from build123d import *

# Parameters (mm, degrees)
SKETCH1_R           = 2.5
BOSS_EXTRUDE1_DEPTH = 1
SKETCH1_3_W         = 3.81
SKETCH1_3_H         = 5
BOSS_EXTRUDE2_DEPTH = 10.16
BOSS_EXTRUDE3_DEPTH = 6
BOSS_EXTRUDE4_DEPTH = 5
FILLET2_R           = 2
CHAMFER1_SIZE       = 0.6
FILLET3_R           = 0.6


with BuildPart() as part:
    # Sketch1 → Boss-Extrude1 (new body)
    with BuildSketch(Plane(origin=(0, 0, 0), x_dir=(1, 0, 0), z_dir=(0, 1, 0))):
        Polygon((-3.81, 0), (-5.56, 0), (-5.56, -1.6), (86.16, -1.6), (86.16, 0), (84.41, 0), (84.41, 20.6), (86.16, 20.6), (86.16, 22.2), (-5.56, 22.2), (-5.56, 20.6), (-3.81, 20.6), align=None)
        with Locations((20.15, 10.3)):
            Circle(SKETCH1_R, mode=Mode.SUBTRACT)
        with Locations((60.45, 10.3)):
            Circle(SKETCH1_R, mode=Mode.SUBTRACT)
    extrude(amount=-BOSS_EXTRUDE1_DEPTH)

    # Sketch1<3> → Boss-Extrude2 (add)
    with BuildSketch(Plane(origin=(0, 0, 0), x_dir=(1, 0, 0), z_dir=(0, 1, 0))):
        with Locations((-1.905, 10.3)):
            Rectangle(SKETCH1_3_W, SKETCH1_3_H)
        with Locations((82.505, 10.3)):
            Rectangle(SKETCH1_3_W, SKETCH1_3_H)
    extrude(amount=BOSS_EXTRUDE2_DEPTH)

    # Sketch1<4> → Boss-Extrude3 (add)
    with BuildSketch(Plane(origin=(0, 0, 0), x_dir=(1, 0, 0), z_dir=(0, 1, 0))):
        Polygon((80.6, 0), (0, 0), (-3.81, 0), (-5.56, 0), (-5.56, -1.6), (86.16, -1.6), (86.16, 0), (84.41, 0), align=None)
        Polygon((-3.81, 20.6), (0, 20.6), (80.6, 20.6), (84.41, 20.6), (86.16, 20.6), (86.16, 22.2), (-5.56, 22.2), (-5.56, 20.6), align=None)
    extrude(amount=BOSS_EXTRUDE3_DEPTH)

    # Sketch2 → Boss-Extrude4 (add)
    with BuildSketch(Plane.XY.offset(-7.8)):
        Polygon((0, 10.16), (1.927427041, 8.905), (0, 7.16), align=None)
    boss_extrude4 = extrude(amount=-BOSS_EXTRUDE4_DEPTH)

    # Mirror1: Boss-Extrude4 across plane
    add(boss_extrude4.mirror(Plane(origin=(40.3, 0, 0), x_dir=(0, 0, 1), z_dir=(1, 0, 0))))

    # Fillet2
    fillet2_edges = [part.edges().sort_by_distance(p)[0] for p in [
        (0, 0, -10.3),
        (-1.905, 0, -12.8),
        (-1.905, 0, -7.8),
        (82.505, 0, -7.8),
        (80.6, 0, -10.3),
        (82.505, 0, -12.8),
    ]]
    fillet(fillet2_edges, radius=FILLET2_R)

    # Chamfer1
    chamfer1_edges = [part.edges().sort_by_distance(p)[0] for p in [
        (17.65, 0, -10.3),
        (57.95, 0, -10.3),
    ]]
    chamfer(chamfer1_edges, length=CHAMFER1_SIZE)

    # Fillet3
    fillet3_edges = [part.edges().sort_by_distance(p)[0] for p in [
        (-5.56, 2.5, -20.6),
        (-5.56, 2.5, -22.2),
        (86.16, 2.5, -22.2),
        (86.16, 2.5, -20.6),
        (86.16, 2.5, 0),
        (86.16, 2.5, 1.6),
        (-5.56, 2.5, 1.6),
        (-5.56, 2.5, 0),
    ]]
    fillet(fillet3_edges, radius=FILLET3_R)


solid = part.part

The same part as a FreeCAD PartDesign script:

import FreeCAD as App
import Part
import Sketcher
Q = App.Units.Quantity


def edges_at(feature, points):
    """Names of the edges that pass closest to the given points."""
    edges = feature.Shape.Edges
    near = lambda p: min(range(len(edges)), key=lambda i: edges[i].distToShape(Part.Vertex(*p))[0])
    return sorted({f"Edge{near(p) + 1}" for p in points})


def add_polygon(sketch, points):
    """Adds a closed chain of lines whose ends are joined by coincident constraints."""
    first, n = sketch.GeometryCount, len(points)
    for a, b in zip(points, points[1:] + points[:1]):
        sketch.addGeometry(Part.LineSegment(App.Vector(*a, 0), App.Vector(*b, 0)), False)
    for i in range(n):
        sketch.addConstraint(Sketcher.Constraint("Coincident", first + i, 2, first + (i + 1) % n, 1))

doc = App.newDocument("Part")
body = doc.addObject("PartDesign::Body", "Body")

# Sketch on XZ plane
sketch1 = doc.addObject("Sketcher::SketchObject", "Sketch")
body.addObject(sketch1)
sketch1.AttachmentSupport = (doc.XZ_Plane, [""])
sketch1.MapMode = "FlatFace"
add_polygon(sketch1, [(-3.81, 0), (-5.56, 0), (-5.56, 1.6), (86.16, 1.6), (86.16, 0), (84.41, 0), (84.41, -20.6), (86.16, -20.6), (86.16, -22.2), (-5.56, -22.2), (-5.56, -20.6), (-3.81, -20.6)])  # lines 0-11
sketch1.addGeometry(Part.Circle(App.Vector(20.15, -10.3, 0), App.Vector(0, 0, 1), 2.5), False)  # 12
sketch1.addGeometry(Part.Circle(App.Vector(60.45, -10.3, 0), App.Vector(0, 0, 1), 2.5), False)  # 13
sketch1.addConstraint([
    Sketcher.Constraint("Horizontal", 0),
    Sketcher.Constraint("Vertical", 1),
    Sketcher.Constraint("Horizontal", 2),
    Sketcher.Constraint("Vertical", 3),
    Sketcher.Constraint("Horizontal", 4),
    Sketcher.Constraint("Vertical", 5),
    Sketcher.Constraint("Horizontal", 6),
    Sketcher.Constraint("Vertical", 7),
    Sketcher.Constraint("Horizontal", 8),
    Sketcher.Constraint("Vertical", 9),
    Sketcher.Constraint("Horizontal", 10),
    Sketcher.Constraint("Vertical", 11),
    Sketcher.Constraint("Equal", 12, 13),
    Sketcher.Constraint("PointOnObject", 0, 2, -1),
    Sketcher.Constraint("PointOnObject", 3, 2, -1),
    Sketcher.Constraint("Horizontal", 12, 3, 13, 3),
    Sketcher.Constraint("Horizontal", 6, 2, 9, 2),
    Sketcher.Constraint("Vertical", 3, 2, 6, 2),
    Sketcher.Constraint("Vertical", 1, 2, 8, 2),
    Sketcher.Constraint("Equal", 0, 4),
    Sketcher.Constraint("Equal", 3, 7),
    Sketcher.Constraint("Diameter", 12, Q("5 mm")),
    Sketcher.Constraint("DistanceY", 1, 1, 1, 2, Q("1.6 mm")),
    Sketcher.Constraint("DistanceY", 5, 2, 5, 1, Q("20.6 mm")),
    Sketcher.Constraint("DistanceX", 0, 2, 0, 1, Q("1.75 mm")),
    Sketcher.Constraint("DistanceX", 2, 1, 2, 2, Q("91.72 mm")),
    Sketcher.Constraint("DistanceY", 12, 3, -1, 1, Q("10.3 mm")),
    Sketcher.Constraint("DistanceX", 12, 3, 13, 3, Q("40.3 mm")),
    Sketcher.Constraint("DistanceX", -1, 1, 12, 3, Q("20.15 mm")),
    Sketcher.Constraint("DistanceX", 0, 2, -1, 1, Q("5.56 mm")),
])
pad1 = doc.addObject("PartDesign::Pad", "Pad")
body.addObject(pad1)
pad1.Profile = sketch1
pad1.Length = 1

# Sketch on XZ plane
sketch2 = doc.addObject("Sketcher::SketchObject", "Sketch001")
body.addObject(sketch2)
sketch2.AttachmentSupport = (doc.XZ_Plane, [""])
sketch2.MapMode = "FlatFace"
add_polygon(sketch2, [(-3.81, -12.8), (-3.81, -7.8), (0, -7.8), (0, -12.8)])  # lines 0-3
add_polygon(sketch2, [(80.6, -12.8), (80.6, -7.8), (84.41, -7.8), (84.41, -12.8)])  # lines 4-7
sketch2.addConstraint([
    Sketcher.Constraint("Vertical", 0),
    Sketcher.Constraint("Horizontal", 1),
    Sketcher.Constraint("Vertical", 2),
    Sketcher.Constraint("Horizontal", 3),
    Sketcher.Constraint("Vertical", 4),
    Sketcher.Constraint("Horizontal", 5),
    Sketcher.Constraint("Vertical", 6),
    Sketcher.Constraint("Horizontal", 7),
    Sketcher.Constraint("PointOnObject", 1, 2, -2),
    Sketcher.Constraint("Horizontal", 1, 2, 4, 2),
    Sketcher.Constraint("Horizontal", 3, 2, 6, 2),
    Sketcher.Constraint("Equal", 3, 5),
    Sketcher.Constraint("DistanceY", 0, 1, 0, 2, Q("5 mm")),
    Sketcher.Constraint("DistanceX", 1, 1, 1, 2, Q("3.81 mm")),
    Sketcher.Constraint("DistanceY", 0, 2, -1, 1, Q("7.8 mm")),
    Sketcher.Constraint("DistanceX", -1, 1, 4, 2, Q("80.6 mm")),
])
pad2 = doc.addObject("PartDesign::Pad", "Pad001")
body.addObject(pad2)
pad2.Profile = sketch2
pad2.Length = 10.16
pad2.Reversed = True

# Sketch on XZ plane
sketch3 = doc.addObject("Sketcher::SketchObject", "Sketch002")
body.addObject(sketch3)
sketch3.AttachmentSupport = (doc.XZ_Plane, [""])
sketch3.MapMode = "FlatFace"
add_polygon(sketch3, [(-5.56, 0), (-5.56, 1.6), (86.16, 1.6), (86.16, 0)])  # lines 0-3
add_polygon(sketch3, [(86.16, -20.6), (86.16, -22.2), (-5.56, -22.2), (-5.56, -20.6)])  # lines 4-7
sketch3.addConstraint([
    Sketcher.Constraint("Vertical", 0),
    Sketcher.Constraint("Horizontal", 1),
    Sketcher.Constraint("Vertical", 2),
    Sketcher.Constraint("Horizontal", 3),
    Sketcher.Constraint("Vertical", 4),
    Sketcher.Constraint("Horizontal", 5),
    Sketcher.Constraint("Vertical", 6),
    Sketcher.Constraint("Horizontal", 7),
    Sketcher.Constraint("PointOnObject", 2, 2, -1),
    Sketcher.Constraint("Vertical", 2, 2, 4, 2),
    Sketcher.Constraint("Vertical", 3, 2, 5, 2),
    Sketcher.Constraint("Equal", 2, 4),
    Sketcher.Constraint("DistanceY", 0, 1, 0, 2, Q("1.6 mm")),
    Sketcher.Constraint("DistanceX", 1, 1, 1, 2, Q("91.72 mm")),
    Sketcher.Constraint("DistanceY", 4, 2, -1, 1, Q("22.2 mm")),
    Sketcher.Constraint("DistanceX", 0, 2, -1, 1, Q("5.56 mm")),
])
pad3 = doc.addObject("PartDesign::Pad", "Pad002")
body.addObject(pad3)
pad3.Profile = sketch3
pad3.Length = 6
pad3.Reversed = True

# Sketch on XY plane
sketch4 = doc.addObject("Sketcher::SketchObject", "Sketch003")
body.addObject(sketch4)
sketch4.AttachmentSupport = (doc.XY_Plane, [""])
sketch4.MapMode = "FlatFace"
sketch4.AttachmentOffset = App.Placement(App.Vector(0, 0, -7.8), App.Rotation())
add_polygon(sketch4, [(1.927427, 8.905), (0, 10.16), (0, 7.16)])  # lines 0-2
sketch4.addConstraint([
    Sketcher.Constraint("Vertical", 1),
    Sketcher.Constraint("PointOnObject", 0, 2, -2),
    Sketcher.Constraint("DistanceY", 1, 2, 1, 1, Q("3 mm")),
    Sketcher.Constraint("Distance", 0, Q("2.3 mm")),
    Sketcher.Constraint("Distance", 2, Q("2.6 mm")),
    Sketcher.Constraint("DistanceY", -1, 1, 0, 2, Q("10.16 mm")),
])
pad4 = doc.addObject("PartDesign::Pad", "Pad003")
body.addObject(pad4)
pad4.Profile = sketch4
pad4.Length = 5
pad4.Reversed = True
doc.recompute()

datumplane = doc.addObject("PartDesign::Plane", "DatumPlane")
body.addObject(datumplane)
datumplane.AttachmentSupport = (doc.YZ_Plane, [""])
datumplane.MapMode = "FlatFace"
datumplane.AttachmentOffset = App.Placement(App.Vector(0, 0, 40.3), App.Rotation())
mirrored = doc.addObject("PartDesign::Mirrored", "Mirrored")
body.addObject(mirrored)
mirrored.Originals = [pad4]
mirrored.MirrorPlane = (datumplane, [""])
body.Tip = mirrored
doc.recompute()

fillet = doc.addObject("PartDesign::Fillet", "Fillet")
body.addObject(fillet)
fillet.Base = (mirrored, edges_at(mirrored, [
    (0, 0, -10.3),
    (-1.905, 0, -12.8),
    (-1.905, 0, -7.8),
    (82.505, 0, -7.8),
    (80.6, 0, -10.3),
    (82.505, 0, -12.8),
]))
fillet.Radius = 2
doc.recompute()

chamfer = doc.addObject("PartDesign::Chamfer", "Chamfer")
body.addObject(chamfer)
chamfer.Base = (fillet, edges_at(fillet, [(17.65, 0, -10.3), (57.95, 0, -10.3)]))
chamfer.Size = 0.6
doc.recompute()

fillet2 = doc.addObject("PartDesign::Fillet", "Fillet001")
body.addObject(fillet2)
fillet2.Base = (chamfer, edges_at(chamfer, [
    (-5.56, 2.5, -20.6),
    (-5.56, 2.5, -22.2),
    (86.16, 2.5, -22.2),
    (86.16, 2.5, -20.6),
    (86.16, 2.5, 0),
    (86.16, 2.5, 1.6),
    (-5.56, 2.5, 1.6),
    (-5.56, 2.5, 0),
]))
fillet2.Radius = 0.6

doc.recompute()
